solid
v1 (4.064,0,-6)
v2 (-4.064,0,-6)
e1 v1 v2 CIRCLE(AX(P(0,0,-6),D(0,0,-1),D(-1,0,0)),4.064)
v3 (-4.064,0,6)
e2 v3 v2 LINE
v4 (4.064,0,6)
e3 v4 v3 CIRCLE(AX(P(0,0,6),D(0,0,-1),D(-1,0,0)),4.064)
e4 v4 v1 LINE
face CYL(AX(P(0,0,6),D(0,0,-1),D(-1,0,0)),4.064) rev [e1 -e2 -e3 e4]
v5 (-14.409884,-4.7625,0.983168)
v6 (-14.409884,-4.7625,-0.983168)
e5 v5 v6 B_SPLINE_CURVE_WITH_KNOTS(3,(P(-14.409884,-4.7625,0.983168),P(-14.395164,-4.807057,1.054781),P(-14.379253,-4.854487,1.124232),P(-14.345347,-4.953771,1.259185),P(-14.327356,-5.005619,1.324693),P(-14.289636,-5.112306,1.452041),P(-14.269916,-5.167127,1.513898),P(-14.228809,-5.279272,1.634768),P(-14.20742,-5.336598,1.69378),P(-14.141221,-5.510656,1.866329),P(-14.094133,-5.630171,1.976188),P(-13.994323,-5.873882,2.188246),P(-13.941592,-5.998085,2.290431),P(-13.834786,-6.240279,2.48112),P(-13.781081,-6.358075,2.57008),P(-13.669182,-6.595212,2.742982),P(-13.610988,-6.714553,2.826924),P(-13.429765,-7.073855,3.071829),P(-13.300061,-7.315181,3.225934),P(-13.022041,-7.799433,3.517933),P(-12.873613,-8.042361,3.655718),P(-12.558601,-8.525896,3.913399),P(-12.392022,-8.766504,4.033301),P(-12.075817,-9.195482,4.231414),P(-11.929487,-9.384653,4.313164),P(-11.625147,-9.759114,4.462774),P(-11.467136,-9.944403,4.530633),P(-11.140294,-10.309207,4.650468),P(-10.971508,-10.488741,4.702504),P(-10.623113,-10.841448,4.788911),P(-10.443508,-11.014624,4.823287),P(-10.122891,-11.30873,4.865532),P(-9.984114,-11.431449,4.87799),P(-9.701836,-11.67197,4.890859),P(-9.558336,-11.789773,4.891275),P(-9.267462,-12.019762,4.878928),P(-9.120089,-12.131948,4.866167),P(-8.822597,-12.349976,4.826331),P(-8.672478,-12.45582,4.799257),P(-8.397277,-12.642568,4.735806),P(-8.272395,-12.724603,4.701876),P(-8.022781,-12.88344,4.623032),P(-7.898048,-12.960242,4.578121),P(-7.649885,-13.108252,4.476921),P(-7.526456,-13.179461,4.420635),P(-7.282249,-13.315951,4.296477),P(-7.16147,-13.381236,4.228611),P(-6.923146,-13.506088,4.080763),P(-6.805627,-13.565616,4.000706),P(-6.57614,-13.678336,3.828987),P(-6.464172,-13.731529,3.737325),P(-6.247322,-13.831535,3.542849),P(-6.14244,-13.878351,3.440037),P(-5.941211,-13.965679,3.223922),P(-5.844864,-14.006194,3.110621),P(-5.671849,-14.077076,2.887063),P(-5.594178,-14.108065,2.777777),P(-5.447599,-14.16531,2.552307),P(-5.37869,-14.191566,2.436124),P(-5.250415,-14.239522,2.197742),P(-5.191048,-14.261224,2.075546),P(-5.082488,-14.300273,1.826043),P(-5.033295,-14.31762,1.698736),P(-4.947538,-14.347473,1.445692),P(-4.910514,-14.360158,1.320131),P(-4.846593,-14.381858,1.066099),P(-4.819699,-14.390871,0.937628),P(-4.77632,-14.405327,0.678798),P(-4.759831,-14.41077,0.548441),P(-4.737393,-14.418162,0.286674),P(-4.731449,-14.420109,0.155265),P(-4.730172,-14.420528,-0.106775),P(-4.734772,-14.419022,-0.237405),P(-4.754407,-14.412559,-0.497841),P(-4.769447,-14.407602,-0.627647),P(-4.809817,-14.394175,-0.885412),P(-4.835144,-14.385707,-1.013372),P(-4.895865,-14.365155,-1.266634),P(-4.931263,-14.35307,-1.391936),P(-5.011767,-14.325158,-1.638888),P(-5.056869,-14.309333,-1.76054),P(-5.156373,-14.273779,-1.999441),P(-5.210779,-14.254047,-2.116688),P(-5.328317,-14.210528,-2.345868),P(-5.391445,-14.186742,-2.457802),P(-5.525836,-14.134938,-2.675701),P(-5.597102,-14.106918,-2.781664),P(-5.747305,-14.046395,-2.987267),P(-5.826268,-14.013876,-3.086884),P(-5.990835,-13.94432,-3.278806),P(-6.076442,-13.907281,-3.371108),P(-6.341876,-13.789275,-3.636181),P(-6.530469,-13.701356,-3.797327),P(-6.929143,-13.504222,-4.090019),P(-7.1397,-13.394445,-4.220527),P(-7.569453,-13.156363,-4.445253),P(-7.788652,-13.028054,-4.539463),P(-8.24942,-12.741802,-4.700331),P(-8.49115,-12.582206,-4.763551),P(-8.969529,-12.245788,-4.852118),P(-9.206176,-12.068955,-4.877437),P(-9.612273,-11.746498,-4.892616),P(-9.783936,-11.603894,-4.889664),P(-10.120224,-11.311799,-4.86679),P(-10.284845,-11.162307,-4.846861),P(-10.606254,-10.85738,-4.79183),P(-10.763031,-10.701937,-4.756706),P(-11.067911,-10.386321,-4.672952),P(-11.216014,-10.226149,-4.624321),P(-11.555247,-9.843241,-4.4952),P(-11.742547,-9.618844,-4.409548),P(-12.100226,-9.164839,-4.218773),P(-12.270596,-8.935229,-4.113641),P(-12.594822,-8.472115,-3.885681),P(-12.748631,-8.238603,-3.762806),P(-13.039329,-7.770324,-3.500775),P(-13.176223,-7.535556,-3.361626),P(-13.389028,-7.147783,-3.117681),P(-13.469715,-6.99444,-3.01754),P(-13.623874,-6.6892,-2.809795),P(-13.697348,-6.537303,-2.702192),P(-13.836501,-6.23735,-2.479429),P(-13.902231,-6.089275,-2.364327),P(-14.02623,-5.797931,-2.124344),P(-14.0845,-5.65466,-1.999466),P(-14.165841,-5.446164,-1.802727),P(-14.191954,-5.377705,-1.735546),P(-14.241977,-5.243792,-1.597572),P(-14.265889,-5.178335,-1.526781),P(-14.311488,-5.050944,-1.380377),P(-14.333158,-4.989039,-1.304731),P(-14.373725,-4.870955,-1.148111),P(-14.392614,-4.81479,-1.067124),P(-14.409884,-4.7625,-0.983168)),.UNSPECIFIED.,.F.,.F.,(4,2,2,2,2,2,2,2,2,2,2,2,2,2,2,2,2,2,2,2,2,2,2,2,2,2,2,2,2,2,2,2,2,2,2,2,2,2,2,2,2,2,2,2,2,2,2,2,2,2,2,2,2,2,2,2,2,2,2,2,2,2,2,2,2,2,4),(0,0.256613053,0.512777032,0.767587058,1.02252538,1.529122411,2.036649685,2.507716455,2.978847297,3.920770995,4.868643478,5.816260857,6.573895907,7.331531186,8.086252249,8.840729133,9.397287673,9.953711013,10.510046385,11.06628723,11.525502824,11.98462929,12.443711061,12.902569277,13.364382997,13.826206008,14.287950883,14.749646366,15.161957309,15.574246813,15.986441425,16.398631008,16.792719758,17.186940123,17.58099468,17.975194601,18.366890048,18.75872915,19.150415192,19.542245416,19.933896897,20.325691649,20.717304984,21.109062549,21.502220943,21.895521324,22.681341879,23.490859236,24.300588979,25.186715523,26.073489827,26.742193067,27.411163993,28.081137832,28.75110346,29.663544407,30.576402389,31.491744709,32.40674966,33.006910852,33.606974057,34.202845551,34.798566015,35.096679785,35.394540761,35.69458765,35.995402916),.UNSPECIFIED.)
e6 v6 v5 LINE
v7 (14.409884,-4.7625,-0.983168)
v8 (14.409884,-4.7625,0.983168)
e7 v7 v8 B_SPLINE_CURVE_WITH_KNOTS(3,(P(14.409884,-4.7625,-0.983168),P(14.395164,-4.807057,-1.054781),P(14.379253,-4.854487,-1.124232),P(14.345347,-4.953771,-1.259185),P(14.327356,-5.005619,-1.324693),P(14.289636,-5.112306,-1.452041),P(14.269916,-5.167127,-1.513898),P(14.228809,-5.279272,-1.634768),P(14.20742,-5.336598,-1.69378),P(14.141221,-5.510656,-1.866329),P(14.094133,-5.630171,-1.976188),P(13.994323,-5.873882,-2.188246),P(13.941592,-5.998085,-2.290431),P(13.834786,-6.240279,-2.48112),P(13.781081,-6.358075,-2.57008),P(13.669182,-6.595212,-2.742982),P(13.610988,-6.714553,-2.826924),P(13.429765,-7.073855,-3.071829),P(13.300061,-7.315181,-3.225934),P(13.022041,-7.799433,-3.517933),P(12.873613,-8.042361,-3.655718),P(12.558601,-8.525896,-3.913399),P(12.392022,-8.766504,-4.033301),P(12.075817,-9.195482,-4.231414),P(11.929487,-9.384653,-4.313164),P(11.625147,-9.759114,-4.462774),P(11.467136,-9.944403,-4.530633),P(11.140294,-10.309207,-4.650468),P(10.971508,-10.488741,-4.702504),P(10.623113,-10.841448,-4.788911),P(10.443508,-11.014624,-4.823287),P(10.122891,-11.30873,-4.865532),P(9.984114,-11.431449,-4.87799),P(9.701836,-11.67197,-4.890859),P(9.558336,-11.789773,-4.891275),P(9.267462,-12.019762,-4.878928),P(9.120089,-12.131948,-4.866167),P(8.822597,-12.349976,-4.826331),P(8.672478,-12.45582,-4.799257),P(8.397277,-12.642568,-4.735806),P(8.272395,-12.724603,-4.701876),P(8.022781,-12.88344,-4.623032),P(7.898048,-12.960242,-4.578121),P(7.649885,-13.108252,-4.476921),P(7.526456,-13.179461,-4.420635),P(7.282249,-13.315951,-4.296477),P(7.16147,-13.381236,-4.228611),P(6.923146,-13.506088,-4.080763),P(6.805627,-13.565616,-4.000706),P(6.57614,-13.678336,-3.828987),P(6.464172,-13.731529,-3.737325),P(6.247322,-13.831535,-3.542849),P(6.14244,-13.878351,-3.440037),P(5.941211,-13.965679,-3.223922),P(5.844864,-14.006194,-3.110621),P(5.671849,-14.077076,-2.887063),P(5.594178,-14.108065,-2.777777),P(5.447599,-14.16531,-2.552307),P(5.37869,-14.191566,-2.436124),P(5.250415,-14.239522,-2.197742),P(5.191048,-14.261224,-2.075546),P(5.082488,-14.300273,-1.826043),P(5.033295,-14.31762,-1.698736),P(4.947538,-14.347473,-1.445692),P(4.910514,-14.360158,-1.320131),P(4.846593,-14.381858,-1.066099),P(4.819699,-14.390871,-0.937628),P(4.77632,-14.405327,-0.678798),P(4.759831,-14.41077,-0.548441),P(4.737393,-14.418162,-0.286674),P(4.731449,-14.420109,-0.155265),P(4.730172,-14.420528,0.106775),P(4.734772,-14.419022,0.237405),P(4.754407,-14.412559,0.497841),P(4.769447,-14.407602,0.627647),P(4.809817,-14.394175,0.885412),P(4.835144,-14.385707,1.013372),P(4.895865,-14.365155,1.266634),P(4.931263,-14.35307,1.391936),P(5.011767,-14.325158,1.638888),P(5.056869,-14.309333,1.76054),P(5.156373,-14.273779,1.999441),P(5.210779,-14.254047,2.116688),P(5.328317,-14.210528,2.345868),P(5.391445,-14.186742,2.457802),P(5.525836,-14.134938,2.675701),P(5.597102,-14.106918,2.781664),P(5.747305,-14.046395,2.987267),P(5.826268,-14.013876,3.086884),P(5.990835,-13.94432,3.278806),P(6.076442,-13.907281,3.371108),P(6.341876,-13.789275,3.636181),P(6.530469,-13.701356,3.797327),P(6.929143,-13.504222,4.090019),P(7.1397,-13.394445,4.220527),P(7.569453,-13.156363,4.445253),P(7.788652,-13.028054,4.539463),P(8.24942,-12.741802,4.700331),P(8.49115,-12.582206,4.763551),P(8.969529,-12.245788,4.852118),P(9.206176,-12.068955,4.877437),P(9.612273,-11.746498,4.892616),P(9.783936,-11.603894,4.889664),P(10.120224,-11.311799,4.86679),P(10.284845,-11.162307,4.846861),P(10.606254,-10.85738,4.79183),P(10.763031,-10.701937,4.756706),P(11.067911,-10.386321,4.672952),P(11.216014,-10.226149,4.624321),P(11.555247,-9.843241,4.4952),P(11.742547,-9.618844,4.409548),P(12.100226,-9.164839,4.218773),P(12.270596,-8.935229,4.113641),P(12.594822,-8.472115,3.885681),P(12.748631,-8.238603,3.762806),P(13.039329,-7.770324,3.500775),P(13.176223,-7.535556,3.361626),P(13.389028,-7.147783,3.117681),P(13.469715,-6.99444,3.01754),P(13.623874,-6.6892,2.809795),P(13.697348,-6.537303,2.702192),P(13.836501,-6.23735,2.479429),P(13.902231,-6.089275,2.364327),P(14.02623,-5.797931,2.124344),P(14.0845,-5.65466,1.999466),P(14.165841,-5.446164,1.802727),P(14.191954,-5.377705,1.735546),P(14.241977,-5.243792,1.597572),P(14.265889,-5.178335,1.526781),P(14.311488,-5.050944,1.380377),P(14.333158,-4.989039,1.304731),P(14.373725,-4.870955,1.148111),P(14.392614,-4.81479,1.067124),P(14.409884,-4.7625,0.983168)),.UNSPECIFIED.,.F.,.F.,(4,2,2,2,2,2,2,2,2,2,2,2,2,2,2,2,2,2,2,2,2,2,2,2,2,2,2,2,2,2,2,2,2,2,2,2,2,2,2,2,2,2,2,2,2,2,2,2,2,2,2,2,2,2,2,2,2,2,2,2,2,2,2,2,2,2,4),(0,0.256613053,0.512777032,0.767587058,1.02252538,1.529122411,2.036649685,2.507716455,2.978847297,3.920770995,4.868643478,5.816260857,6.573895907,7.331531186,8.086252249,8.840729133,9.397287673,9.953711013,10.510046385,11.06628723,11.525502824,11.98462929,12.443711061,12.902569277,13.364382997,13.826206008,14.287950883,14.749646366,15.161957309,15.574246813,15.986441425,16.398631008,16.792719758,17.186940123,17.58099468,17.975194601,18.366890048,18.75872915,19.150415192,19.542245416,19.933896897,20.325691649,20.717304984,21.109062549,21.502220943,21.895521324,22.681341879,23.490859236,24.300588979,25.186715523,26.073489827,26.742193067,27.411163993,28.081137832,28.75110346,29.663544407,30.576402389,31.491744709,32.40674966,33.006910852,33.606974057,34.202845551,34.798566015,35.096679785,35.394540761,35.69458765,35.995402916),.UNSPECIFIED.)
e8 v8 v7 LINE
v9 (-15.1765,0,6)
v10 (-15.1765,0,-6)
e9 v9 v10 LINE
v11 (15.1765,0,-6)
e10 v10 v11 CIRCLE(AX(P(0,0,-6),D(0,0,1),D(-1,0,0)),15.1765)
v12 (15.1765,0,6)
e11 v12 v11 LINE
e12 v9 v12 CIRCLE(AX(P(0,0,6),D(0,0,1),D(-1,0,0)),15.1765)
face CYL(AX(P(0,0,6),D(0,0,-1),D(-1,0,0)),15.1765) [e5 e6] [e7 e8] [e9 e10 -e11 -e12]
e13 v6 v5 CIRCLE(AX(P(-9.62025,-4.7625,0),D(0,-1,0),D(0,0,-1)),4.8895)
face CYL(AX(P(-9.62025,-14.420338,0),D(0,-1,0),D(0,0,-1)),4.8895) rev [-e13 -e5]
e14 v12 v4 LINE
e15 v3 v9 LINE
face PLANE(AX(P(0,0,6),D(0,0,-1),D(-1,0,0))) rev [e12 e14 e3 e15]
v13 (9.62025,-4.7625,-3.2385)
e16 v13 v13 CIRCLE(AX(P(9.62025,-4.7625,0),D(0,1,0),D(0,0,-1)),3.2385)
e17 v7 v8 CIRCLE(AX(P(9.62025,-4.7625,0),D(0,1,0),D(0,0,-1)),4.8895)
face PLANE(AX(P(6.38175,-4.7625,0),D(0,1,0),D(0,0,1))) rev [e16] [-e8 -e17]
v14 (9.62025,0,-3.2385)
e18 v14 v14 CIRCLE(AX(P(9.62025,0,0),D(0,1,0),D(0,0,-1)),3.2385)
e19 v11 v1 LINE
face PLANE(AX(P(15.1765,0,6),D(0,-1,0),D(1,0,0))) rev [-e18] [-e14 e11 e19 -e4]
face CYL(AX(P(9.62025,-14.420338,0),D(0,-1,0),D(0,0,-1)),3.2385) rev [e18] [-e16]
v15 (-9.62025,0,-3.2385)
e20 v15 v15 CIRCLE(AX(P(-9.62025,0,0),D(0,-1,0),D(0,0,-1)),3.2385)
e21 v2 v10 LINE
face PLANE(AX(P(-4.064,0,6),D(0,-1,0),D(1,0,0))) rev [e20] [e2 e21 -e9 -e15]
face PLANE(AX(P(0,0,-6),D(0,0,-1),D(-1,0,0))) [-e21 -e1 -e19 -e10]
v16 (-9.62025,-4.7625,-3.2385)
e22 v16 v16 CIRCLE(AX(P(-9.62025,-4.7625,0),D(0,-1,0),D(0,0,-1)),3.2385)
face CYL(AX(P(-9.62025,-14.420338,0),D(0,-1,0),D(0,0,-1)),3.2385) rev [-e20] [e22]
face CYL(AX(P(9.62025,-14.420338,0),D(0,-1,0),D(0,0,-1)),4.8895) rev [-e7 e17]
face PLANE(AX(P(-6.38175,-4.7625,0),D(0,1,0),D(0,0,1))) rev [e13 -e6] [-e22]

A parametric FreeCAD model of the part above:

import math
import FreeCAD as App
import Part
import Sketcher

V = App.Vector
Q = App.Units.Quantity

doc = App.newDocument("Part")
body = doc.addObject("PartDesign::Body", "Body")

# Sketch on XY plane
sketch1 = body.newObject("Sketcher::SketchObject", "Sketch")
sketch1.AttachmentSupport = (doc.getObject("XY_Plane"), [""])
sketch1.MapMode = "FlatFace"
sketch1.addGeometry([
    Part.LineSegment(V(15.2, 0, 0), V(4.1, 0, 0)),
    Part.ArcOfCircle(Part.Circle(V(0, 0, 0), V(0, 0, 1), 4.1), math.radians(180), math.radians(360)),
    Part.LineSegment(V(-4.1, 0, 0), V(-15.2, 0, 0)),
    Part.ArcOfCircle(Part.Circle(V(0, 0, 0), V(0, 0, 1), 15.2), math.radians(180), math.radians(360)),
], False)
sketch1.addConstraint([
    Sketcher.Constraint("Coincident", 0, 2, 1, 2),
    Sketcher.Constraint("Coincident", 1, 1, 2, 1),
    Sketcher.Constraint("Coincident", 2, 2, 3, 1),
    Sketcher.Constraint("Coincident", 3, 2, 0, 1),
    Sketcher.Constraint("Horizontal", 0),
    Sketcher.Constraint("Horizontal", 2),
    Sketcher.Constraint("Coincident", 1, 3, -1, 1),
    Sketcher.Constraint("Coincident", 3, 3, -1, 1),
    Sketcher.Constraint("PointOnObject", 0, 2, -1),
    Sketcher.Constraint("PointOnObject", 1, 1, -1),
    Sketcher.Constraint("Radius", 1, Q("0.16 in")),
    Sketcher.Constraint("Radius", 3, Q("0.5975 in")),
])
pad1 = body.newObject("PartDesign::Pad", "Pad")
pad1.Profile = sketch1
pad1.Type = "TwoLengths"
pad1.Length = 6
pad1.Length2 = 6

# Sketch on XY plane
sketch2 = body.newObject("Sketcher::SketchObject", "Sketch001")
sketch2.AttachmentSupport = (doc.getObject("XY_Plane"), [""])
sketch2.MapMode = "FlatFace"
sketch2.addGeometry([
    Part.LineSegment(V(-6.4, 0, 0), V(-9.6, 0, 0)),  # 0
    Part.LineSegment(V(-9.6, 0, 0), V(-9.6, -14.4, 0)),  # 1
    Part.LineSegment(V(-9.6, -14.4, 0), V(-4.7, -14.4, 0)),  # 2
    Part.LineSegment(V(-4.7, -14.4, 0), V(-4.7, -4.8, 0)),  # 3
    Part.LineSegment(V(-4.7, -4.8, 0), V(-6.4, -4.8, 0)),  # 4
    Part.LineSegment(V(-6.4, -4.8, 0), V(-6.4, 0, 0)),  # 5
], False)
sketch2.addGeometry(Part.LineSegment(V(-9.6, -14.4, 0), V(-9.6, 0, 0)), True)  # axis
sketch2.addConstraint([
    Sketcher.Constraint("Coincident", 0, 2, 1, 1),
    Sketcher.Constraint("Coincident", 1, 2, 2, 1),
    Sketcher.Constraint("Coincident", 2, 2, 3, 1),
    Sketcher.Constraint("Coincident", 3, 2, 4, 1),
    Sketcher.Constraint("Coincident", 4, 2, 5, 1),
    Sketcher.Constraint("Coincident", 5, 2, 0, 1),
    Sketcher.Constraint("Horizontal", 0),
    Sketcher.Constraint("Vertical", 1),
    Sketcher.Constraint("Horizontal", 2),
    Sketcher.Constraint("Vertical", 3),
    Sketcher.Constraint("Horizontal", 4),
    Sketcher.Constraint("Vertical", 5),
    Sketcher.Constraint("Vertical", 6),
    Sketcher.Constraint("Coincident", 6, 1, 1, 2),
    Sketcher.Constraint("PointOnObject", 0, 2, -1),
    Sketcher.Constraint("PointOnObject", 6, 2, -1),
    Sketcher.Constraint("DistanceX", 4, 2, 4, 1, Q("0.065 in")),
    Sketcher.Constraint("DistanceY", 5, 1, 5, 2, Q("0.1875 in")),
    Sketcher.Constraint("DistanceX", 0, 2, 0, 1, Q("0.1275 in")),
    Sketcher.Constraint("DistanceY", 1, 2, 1, 1, 14.420338),
    Sketcher.Constraint("DistanceX", 0, 2, -1, 1, 9.62025),
])
groove = body.newObject("PartDesign::Groove", "Groove")
groove.Profile = sketch2
groove.ReferenceAxis = (sketch2, ["Axis0"])
groove.Angle = 360
doc.recompute()

mirrored = body.newObject("PartDesign::Mirrored", "Mirrored")
mirrored.Originals = [groove]
mirrored.MirrorPlane = (doc.getObject("YZ_Plane"), [""])
body.Tip = mirrored

doc.recompute()
